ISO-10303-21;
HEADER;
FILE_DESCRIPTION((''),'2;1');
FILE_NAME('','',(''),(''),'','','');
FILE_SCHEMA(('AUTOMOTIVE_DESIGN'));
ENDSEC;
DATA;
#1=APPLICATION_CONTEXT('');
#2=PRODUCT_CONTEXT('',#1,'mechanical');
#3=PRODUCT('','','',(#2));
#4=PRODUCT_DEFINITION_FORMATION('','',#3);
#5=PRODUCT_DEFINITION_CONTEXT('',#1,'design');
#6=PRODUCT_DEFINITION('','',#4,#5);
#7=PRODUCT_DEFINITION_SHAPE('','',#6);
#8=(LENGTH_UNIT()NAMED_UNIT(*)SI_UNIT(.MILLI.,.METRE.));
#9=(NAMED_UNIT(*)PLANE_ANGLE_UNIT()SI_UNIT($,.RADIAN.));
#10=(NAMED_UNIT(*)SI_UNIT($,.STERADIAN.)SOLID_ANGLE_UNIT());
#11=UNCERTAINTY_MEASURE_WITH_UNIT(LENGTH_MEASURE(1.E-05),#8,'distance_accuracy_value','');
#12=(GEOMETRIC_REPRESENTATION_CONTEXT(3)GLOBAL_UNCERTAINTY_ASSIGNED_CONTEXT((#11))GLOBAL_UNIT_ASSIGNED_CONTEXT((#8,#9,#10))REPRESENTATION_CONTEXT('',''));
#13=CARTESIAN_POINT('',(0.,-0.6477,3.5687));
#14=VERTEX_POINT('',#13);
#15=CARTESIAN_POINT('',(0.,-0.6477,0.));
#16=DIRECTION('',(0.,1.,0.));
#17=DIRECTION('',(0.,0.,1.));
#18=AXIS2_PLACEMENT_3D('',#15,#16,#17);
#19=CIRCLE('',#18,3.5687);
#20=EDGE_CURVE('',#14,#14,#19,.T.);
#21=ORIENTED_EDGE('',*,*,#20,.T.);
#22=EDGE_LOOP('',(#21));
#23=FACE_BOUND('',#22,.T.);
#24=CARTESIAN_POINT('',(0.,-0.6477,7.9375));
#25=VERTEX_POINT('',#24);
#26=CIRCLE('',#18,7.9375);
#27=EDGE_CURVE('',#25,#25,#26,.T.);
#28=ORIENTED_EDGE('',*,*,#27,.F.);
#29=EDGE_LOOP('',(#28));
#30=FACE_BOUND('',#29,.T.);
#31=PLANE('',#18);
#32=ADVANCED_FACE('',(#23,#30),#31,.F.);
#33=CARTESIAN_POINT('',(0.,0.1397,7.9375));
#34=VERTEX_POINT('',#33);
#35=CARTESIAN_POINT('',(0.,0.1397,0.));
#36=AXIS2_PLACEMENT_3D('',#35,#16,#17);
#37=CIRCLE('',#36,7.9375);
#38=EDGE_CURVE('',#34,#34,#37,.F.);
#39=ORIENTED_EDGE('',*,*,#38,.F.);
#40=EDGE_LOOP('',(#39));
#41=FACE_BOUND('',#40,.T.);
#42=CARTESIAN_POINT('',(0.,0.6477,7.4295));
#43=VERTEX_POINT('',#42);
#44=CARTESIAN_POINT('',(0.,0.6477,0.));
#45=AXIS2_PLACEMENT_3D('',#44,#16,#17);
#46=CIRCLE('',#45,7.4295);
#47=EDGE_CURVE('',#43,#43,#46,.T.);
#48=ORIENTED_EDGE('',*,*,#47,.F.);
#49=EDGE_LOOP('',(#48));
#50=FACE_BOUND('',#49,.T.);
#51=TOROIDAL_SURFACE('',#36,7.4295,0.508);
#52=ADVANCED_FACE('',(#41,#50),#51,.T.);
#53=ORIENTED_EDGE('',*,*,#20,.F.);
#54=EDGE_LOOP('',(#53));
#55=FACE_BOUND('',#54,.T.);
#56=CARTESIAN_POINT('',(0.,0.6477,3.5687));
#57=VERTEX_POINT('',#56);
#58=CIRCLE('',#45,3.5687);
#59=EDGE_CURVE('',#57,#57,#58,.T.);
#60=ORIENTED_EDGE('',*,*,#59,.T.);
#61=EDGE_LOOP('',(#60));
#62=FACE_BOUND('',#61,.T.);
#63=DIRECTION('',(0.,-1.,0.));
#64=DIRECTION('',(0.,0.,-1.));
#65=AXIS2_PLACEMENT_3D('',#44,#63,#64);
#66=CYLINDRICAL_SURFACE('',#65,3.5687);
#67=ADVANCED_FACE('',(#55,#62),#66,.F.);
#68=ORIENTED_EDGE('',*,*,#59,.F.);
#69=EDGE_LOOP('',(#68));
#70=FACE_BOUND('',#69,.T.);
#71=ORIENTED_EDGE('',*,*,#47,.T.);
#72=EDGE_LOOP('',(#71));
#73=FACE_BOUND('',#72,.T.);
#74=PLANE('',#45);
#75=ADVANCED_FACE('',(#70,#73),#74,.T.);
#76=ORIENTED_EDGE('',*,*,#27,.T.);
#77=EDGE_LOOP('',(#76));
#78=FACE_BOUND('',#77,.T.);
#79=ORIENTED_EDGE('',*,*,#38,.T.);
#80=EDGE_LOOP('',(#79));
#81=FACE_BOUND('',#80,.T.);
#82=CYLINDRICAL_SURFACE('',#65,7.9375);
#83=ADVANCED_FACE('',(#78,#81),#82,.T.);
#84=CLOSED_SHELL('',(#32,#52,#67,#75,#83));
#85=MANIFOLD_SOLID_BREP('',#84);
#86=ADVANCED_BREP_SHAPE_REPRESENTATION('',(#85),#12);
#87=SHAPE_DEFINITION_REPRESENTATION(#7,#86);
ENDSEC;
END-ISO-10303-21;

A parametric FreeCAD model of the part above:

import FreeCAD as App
import Part
import Sketcher

V = App.Vector
Q = App.Units.Quantity


def edges_at(feature, points):
    """Names of the edges that pass closest to the given points."""
    edges = feature.Shape.Edges
    near = lambda p: min(range(len(edges)), key=lambda i: edges[i].distToShape(Part.Vertex(*p))[0])
    return sorted({f"Edge{near(p) + 1}" for p in points})

doc = App.newDocument("Part")
params = doc.addObject("Spreadsheet::Sheet", "Params")
for row, (alias, value) in enumerate([
    ("sketch1_diameter", "0.625 in"),
    ("sketch1_diameter2", "0.281 in"),
    ("pad1_length", "0.0255 in"),
    ("pad1_length2", "0.0255 in"),
    ("fillet_radius", "0.02 in"),
], start=1):
    params.set(f"A{row}", alias)
    params.set(f"B{row}", "=" + value)
    params.setAlias(f"B{row}", alias)

body = doc.addObject("PartDesign::Body", "Body")

sketch1 = body.newObject("Sketcher::SketchObject", "Sketch")
sketch1.AttachmentSupport = (doc.getObject("XZ_Plane"), [""])
sketch1.MapMode = "FlatFace"
sketch1.addGeometry([
    Part.Circle(V(0, 0, 0), V(0, 0, 1), 7.9),
    Part.Circle(V(0, 0, 0), V(0, 0, 1), 3.6),
], False)
sketch1.addConstraint([
    Sketcher.Constraint("Coincident", 0, 3, -1, 1),
    Sketcher.Constraint("Coincident", 1, 3, -1, 1),
    Sketcher.Constraint("Diameter", 0, Q("0.625 in")),
    Sketcher.Constraint("Diameter", 1, Q("0.281 in")),
])
sketch1.setExpression("Constraints[2]", "Params.sketch1_diameter")
sketch1.setExpression("Constraints[3]", "Params.sketch1_diameter2")
pad1 = body.newObject("PartDesign::Pad", "Pad")
pad1.Profile = sketch1
pad1.Type = "TwoLengths"
pad1.setExpression("Length", "Params.pad1_length")
pad1.setExpression("Length2", "Params.pad1_length2")
pad1.Reversed = True
doc.recompute()

fillet = body.newObject("PartDesign::Fillet", "Fillet")
fillet.Base = (pad1, edges_at(pad1, [(-7.938, 0.648, 0)]))
fillet.setExpression("Radius", "Params.fillet_radius")

doc.recompute()
